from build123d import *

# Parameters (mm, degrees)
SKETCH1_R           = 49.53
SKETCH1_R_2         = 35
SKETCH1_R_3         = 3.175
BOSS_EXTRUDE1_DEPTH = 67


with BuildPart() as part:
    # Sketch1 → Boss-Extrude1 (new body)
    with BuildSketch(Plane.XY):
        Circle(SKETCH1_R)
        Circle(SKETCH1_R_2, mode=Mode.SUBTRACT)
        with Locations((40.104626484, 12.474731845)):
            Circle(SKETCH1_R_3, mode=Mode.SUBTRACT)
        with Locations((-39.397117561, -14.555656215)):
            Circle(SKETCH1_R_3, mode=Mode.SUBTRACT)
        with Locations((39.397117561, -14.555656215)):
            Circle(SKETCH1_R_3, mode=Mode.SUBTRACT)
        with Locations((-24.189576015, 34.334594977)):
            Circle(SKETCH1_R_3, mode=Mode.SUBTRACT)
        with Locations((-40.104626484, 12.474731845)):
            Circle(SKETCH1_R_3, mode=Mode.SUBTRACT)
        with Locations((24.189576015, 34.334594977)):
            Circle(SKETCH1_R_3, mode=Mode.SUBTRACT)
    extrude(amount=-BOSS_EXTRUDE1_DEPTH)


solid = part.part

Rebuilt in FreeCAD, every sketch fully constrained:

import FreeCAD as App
import Part
import Sketcher

doc = App.newDocument("Part")
body = doc.addObject("PartDesign::Body", "Body")

sketch1 = body.newObject("Sketcher::SketchObject", "Sketch")
sketch1.AttachmentSupport = (doc.getObject("XY_Plane"), [""])
sketch1.MapMode = "FlatFace"
sketch1.addGeometry([
    Part.Circle(App.Vector(0, 0, 0), App.Vector(0, 0, 1), 49.53),
    Part.Circle(App.Vector(-39.397118, -14.555656, 0), App.Vector(0, 0, 1), 3.175),
    Part.Circle(App.Vector(0, 0, 0), App.Vector(0, 0, 1), 35),
    Part.Circle(App.Vector(39.397118, -14.555656, 0), App.Vector(0, 0, 1), 3.175),
    Part.Circle(App.Vector(-40.104626, 12.474732, 0), App.Vector(0, 0, 1), 3.175),
    Part.Circle(App.Vector(-24.189576, 34.334595, 0), App.Vector(0, 0, 1), 3.175),
    Part.Circle(App.Vector(40.104626, 12.474732, 0), App.Vector(0, 0, 1), 3.175),
    Part.Circle(App.Vector(24.189576, 34.334595, 0), App.Vector(0, 0, 1), 3.175),
], False)
sketch1.addConstraint([
    Sketcher.Constraint("Coincident", 0, 3, -1, 1),
    Sketcher.Constraint("Coincident", 2, 3, -1, 1),
    Sketcher.Constraint("Equal", 1, 3),
    Sketcher.Constraint("Equal", 3, 4),
    Sketcher.Constraint("Equal", 4, 5),
    Sketcher.Constraint("Equal", 5, 6),
    Sketcher.Constraint("Equal", 6, 7),
    Sketcher.Constraint("Symmetric", 1, 3, 3, 3, -2),
    Sketcher.Constraint("Symmetric", 4, 3, 6, 3, -2),
    Sketcher.Constraint("Symmetric", 5, 3, 7, 3, -2),
    Sketcher.Constraint("Diameter", 2, 70.0),
    Sketcher.Constraint("Diameter", 0, 99.06),
    Sketcher.Constraint("Diameter", 1, 6.35),
    Sketcher.Constraint("DistanceY", -1, 1, 4, 3, 12.474732),
    Sketcher.Constraint("DistanceX", 4, 3, 1, 3, 0.707509),
    Sketcher.Constraint("DistanceY", 1, 3, 4, 3, 27.030388),
    Sketcher.Constraint("DistanceX", 4, 3, 5, 3, 15.91505),
    Sketcher.Constraint("DistanceY", 1, 3, 5, 3, 48.890251),
    Sketcher.Constraint("DistanceX", 1, 3, -1, 1, 39.397118),
])
pad1 = body.newObject("PartDesign::Pad", "Pad")
pad1.Profile = sketch1
pad1.Length = 67
pad1.Reversed = True

doc.recompute()
